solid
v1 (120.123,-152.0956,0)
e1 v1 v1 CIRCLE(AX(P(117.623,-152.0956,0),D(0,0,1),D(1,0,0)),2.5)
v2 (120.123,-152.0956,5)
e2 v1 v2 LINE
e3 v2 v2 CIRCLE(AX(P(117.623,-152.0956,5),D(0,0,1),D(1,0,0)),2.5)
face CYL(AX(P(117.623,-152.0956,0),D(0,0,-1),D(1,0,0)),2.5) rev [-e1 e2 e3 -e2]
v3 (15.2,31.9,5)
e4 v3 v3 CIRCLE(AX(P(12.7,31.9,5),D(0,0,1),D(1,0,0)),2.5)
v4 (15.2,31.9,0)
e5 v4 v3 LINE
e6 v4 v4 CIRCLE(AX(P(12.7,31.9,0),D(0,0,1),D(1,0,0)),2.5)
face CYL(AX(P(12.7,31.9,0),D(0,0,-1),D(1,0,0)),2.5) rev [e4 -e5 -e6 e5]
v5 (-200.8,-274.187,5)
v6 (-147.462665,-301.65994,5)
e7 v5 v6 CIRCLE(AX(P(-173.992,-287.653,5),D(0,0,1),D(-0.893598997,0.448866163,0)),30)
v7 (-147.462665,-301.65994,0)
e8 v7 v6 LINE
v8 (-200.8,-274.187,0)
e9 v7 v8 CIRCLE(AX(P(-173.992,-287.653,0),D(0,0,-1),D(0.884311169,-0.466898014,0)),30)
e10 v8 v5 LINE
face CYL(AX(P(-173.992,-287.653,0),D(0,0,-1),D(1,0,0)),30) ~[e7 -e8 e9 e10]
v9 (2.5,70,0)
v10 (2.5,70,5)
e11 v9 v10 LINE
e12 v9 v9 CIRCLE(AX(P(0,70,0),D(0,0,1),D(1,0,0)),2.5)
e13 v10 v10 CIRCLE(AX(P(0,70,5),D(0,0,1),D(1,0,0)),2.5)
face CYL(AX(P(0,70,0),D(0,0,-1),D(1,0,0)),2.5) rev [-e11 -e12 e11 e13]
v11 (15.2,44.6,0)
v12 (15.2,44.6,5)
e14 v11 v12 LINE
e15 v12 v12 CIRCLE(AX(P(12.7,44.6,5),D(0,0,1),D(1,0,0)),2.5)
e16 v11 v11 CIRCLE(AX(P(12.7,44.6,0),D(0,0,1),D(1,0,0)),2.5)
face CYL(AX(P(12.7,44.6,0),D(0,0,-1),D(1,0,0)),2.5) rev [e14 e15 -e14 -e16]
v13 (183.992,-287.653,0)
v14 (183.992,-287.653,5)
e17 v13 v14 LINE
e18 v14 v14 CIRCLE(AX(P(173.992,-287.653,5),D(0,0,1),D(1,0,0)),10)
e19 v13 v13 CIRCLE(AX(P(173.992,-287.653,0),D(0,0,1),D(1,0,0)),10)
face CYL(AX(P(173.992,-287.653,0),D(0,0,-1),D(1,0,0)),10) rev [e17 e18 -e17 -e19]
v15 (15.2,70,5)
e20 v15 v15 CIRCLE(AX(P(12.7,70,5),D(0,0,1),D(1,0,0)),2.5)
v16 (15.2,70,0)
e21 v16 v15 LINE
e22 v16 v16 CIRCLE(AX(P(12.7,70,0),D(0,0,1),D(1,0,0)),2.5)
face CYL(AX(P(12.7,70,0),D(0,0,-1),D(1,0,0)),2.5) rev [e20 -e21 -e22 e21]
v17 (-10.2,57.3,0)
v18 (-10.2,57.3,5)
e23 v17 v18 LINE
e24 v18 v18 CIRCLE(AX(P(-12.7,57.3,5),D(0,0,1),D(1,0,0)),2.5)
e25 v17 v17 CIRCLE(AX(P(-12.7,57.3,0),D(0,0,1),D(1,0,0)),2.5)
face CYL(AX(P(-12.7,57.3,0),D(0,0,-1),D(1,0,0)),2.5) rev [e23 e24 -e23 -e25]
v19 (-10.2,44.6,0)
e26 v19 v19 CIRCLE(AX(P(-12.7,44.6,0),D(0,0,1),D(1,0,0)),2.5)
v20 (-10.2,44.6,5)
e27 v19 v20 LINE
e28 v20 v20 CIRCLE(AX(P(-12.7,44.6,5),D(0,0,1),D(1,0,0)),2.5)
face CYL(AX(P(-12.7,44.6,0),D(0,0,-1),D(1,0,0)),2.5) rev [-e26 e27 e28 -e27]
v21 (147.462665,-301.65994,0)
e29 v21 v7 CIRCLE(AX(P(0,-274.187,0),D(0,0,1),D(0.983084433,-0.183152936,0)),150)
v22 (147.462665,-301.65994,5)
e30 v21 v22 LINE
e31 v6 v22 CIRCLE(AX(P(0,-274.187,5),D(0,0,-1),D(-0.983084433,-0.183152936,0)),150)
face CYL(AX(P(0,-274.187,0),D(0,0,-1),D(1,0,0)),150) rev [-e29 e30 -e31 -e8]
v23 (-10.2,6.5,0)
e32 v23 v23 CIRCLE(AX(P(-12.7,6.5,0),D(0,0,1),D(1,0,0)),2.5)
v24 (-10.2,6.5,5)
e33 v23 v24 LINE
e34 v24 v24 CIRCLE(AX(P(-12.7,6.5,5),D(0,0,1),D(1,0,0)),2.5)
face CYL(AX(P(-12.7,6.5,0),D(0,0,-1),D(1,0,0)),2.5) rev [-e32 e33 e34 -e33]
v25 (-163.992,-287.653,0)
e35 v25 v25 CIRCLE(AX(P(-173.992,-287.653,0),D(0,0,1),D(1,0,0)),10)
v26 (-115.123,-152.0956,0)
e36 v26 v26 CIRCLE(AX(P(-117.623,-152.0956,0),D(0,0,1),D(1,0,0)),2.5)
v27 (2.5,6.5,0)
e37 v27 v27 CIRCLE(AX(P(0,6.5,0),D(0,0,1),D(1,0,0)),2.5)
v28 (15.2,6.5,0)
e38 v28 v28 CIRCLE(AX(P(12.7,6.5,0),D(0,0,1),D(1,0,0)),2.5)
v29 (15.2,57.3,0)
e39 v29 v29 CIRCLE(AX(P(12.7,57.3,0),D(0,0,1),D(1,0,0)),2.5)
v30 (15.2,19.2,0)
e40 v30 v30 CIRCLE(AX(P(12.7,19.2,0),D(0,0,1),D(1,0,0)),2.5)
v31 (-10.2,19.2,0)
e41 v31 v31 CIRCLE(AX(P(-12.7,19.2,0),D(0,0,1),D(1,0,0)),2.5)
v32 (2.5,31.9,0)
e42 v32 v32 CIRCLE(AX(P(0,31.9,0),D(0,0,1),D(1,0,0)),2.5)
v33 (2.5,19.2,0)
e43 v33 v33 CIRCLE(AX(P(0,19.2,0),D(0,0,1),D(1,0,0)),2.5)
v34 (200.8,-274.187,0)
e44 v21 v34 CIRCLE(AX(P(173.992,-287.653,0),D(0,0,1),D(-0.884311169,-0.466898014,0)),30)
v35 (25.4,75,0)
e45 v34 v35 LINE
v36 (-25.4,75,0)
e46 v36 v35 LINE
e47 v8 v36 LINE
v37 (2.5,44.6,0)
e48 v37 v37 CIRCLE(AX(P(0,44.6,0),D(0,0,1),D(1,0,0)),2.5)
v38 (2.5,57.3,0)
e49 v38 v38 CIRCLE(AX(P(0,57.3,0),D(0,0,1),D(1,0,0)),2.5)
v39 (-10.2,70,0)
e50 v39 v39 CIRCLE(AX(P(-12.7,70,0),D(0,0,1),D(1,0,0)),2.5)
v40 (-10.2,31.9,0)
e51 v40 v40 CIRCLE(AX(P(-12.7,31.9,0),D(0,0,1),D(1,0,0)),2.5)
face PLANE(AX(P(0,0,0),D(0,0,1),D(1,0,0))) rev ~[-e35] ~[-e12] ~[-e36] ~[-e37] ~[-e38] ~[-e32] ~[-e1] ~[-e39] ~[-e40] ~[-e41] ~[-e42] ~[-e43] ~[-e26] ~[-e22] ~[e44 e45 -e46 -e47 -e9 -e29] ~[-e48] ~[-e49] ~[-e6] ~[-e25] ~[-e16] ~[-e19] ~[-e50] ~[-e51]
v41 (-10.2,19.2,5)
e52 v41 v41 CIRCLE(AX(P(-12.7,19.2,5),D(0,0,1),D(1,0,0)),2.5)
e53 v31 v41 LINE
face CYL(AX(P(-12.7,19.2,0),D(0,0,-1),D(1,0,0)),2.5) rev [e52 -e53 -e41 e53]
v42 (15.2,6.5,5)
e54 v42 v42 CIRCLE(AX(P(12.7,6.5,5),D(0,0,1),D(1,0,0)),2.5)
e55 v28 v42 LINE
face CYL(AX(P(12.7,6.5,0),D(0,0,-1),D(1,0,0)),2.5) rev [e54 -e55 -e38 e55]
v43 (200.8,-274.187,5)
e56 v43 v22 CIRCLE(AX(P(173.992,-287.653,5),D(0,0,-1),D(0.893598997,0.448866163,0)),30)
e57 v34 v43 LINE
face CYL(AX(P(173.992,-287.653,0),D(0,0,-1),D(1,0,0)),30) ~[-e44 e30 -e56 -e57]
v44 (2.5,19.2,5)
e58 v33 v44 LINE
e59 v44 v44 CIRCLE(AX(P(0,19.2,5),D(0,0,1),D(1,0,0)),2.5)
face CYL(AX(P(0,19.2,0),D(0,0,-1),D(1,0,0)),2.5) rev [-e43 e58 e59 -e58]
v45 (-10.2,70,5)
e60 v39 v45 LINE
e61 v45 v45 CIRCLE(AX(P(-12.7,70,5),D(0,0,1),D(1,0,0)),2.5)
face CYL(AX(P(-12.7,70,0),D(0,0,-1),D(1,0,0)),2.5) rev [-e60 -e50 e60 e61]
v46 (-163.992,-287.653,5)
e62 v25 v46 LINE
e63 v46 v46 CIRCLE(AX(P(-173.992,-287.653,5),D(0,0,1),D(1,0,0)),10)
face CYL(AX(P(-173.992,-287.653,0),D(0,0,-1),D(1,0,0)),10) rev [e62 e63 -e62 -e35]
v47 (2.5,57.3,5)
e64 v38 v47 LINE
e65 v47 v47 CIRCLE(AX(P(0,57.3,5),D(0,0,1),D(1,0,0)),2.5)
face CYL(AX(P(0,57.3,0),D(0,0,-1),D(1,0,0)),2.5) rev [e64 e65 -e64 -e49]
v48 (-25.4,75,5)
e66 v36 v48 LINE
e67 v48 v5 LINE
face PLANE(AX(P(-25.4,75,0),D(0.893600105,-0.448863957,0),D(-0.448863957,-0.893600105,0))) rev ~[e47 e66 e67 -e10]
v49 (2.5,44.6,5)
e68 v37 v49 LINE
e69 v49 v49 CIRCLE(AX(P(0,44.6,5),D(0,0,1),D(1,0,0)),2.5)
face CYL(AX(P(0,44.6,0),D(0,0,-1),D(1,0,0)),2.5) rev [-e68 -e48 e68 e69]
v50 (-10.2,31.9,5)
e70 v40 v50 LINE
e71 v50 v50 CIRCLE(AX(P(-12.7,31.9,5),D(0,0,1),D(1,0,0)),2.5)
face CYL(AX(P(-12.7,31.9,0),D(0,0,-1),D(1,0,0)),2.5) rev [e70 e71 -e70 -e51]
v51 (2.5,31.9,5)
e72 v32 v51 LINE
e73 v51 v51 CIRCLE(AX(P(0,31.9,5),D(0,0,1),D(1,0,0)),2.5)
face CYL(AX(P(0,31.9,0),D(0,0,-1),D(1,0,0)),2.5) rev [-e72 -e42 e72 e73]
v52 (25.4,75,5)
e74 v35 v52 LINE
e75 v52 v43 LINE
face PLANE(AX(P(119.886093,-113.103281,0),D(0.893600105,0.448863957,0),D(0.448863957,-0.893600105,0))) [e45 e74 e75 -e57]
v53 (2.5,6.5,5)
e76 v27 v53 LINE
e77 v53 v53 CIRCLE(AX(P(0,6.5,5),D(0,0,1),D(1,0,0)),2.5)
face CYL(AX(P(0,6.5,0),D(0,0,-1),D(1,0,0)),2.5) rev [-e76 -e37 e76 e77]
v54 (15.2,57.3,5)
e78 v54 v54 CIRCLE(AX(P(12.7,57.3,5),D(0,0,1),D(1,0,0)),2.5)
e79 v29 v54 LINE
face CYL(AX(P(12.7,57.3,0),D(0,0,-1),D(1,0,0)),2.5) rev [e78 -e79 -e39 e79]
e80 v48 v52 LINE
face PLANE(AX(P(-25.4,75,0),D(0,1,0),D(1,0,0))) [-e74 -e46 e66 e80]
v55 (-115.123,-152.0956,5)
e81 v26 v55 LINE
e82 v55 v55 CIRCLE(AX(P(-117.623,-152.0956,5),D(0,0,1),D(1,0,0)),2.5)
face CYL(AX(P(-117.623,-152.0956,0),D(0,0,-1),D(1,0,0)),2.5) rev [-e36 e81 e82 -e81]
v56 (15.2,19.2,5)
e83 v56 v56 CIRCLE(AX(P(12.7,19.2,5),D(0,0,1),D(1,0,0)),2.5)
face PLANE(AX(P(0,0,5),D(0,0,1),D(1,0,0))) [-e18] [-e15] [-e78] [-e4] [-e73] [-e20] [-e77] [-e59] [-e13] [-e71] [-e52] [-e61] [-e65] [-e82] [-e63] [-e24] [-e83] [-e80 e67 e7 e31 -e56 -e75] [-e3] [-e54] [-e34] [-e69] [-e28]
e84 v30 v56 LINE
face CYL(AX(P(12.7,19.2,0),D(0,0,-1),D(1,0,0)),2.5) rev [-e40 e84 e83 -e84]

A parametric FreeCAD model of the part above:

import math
import FreeCAD as App
import Part
import Sketcher
Q = App.Units.Quantity

doc = App.newDocument("Part")
body = doc.addObject("PartDesign::Body", "Body")

sketch1 = body.newObject("Sketcher::SketchObject", "Sketch")
sketch1.AttachmentSupport = (doc.getObject("XY_Plane"), [""])
sketch1.MapMode = "FlatFace"
sketch1.addGeometry([
    Part.LineSegment(App.Vector(200.8, -274.2, 0), App.Vector(25.4, 75, 0)),
    Part.LineSegment(App.Vector(25.4, 75, 0), App.Vector(-25.4, 75, 0)),
    Part.LineSegment(App.Vector(-25.4, 75, 0), App.Vector(-200.8, -274.2, 0)),
    Part.ArcOfCircle(Part.Circle(App.Vector(-174, -287.7, 0), App.Vector(0, 0, 1), 30), math.radians(153), math.radians(332)),
    Part.ArcOfCircle(Part.Circle(App.Vector(0, -274.2, 0), App.Vector(0, 0, 1), 150), math.radians(-11), math.radians(191)),
    Part.ArcOfCircle(Part.Circle(App.Vector(174, -287.7, 0), App.Vector(0, 0, 1), 30), math.radians(-152), math.radians(27)),
    Part.Circle(App.Vector(117.6, -152.1, 0), App.Vector(0, 0, 1), 2.5),
    Part.Circle(App.Vector(174, -287.7, 0), App.Vector(0, 0, 1), 10),
    Part.Circle(App.Vector(-117.6, -152.1, 0), App.Vector(0, 0, 1), 2.5),
    Part.Circle(App.Vector(0, 70, 0), App.Vector(0, 0, 1), 2.5),
    Part.Circle(App.Vector(12.7, 70, 0), App.Vector(0, 0, 1), 2.5),
    Part.Circle(App.Vector(-12.7, 6.5, 0), App.Vector(0, 0, 1), 2.5),
    Part.Circle(App.Vector(-12.7, 19.2, 0), App.Vector(0, 0, 1), 2.5),
    Part.Circle(App.Vector(-12.7, 31.9, 0), App.Vector(0, 0, 1), 2.5),
    Part.Circle(App.Vector(-12.7, 44.6, 0), App.Vector(0, 0, 1), 2.5),
    Part.Circle(App.Vector(-12.7, 57.3, 0), App.Vector(0, 0, 1), 2.5),
    Part.Circle(App.Vector(-12.7, 70, 0), App.Vector(0, 0, 1), 2.5),
    Part.Circle(App.Vector(0, 6.5, 0), App.Vector(0, 0, 1), 2.5),
    Part.Circle(App.Vector(12.7, 6.5, 0), App.Vector(0, 0, 1), 2.5),
    Part.Circle(App.Vector(0, 19.2, 0), App.Vector(0, 0, 1), 2.5),
    Part.Circle(App.Vector(12.7, 19.2, 0), App.Vector(0, 0, 1), 2.5),
    Part.Circle(App.Vector(0, 31.9, 0), App.Vector(0, 0, 1), 2.5),
    Part.Circle(App.Vector(12.7, 31.9, 0), App.Vector(0, 0, 1), 2.5),
    Part.Circle(App.Vector(0, 44.6, 0), App.Vector(0, 0, 1), 2.5),
    Part.Circle(App.Vector(12.7, 44.6, 0), App.Vector(0, 0, 1), 2.5),
    Part.Circle(App.Vector(0, 57.3, 0), App.Vector(0, 0, 1), 2.5),
    Part.Circle(App.Vector(12.7, 57.3, 0), App.Vector(0, 0, 1), 2.5),
    Part.Circle(App.Vector(-174, -287.7, 0), App.Vector(0, 0, 1), 10),
], False)
sketch1.addConstraint([
    Sketcher.Constraint("Coincident", 0, 2, 1, 1),
    Sketcher.Constraint("Coincident", 1, 2, 2, 1),
    Sketcher.Constraint("Tangent", 2, 2, 3, 1),
    Sketcher.Constraint("Coincident", 3, 2, 4, 2),
    Sketcher.Constraint("Coincident", 4, 1, 5, 1),
    Sketcher.Constraint("Tangent", 5, 2, 0, 1),
    Sketcher.Constraint("Horizontal", 1),
    Sketcher.Constraint("Coincident", 7, 3, 5, 3),
    Sketcher.Constraint("Coincident", 27, 3, 3, 3),
    Sketcher.Constraint("Equal", 3, 5),
    Sketcher.Constraint("Equal", 6, 8),
    Sketcher.Constraint("Equal", 8, 9),
    Sketcher.Constraint("Equal", 9, 10),
    Sketcher.Constraint("Equal", 10, 11),
    Sketcher.Constraint("Equal", 11, 12),
    Sketcher.Constraint("Equal", 12, 13),
    Sketcher.Constraint("Equal", 13, 14),
    Sketcher.Constraint("Equal", 14, 15),
    Sketcher.Constraint("Equal", 15, 16),
    Sketcher.Constraint("Equal", 16, 17),
    Sketcher.Constraint("Equal", 17, 18),
    Sketcher.Constraint("Equal", 18, 19),
    Sketcher.Constraint("Equal", 19, 20),
    Sketcher.Constraint("Equal", 20, 21),
    Sketcher.Constraint("Equal", 21, 22),
    Sketcher.Constraint("Equal", 22, 23),
    Sketcher.Constraint("Equal", 23, 24),
    Sketcher.Constraint("Equal", 24, 25),
    Sketcher.Constraint("Equal", 25, 26),
    Sketcher.Constraint("Equal", 7, 27),
    Sketcher.Constraint("Symmetric", 3, 3, 5, 3, -2),
    Sketcher.Constraint("Symmetric", 6, 3, 8, 3, -2),
    Sketcher.Constraint("Symmetric", 10, 3, 16, 3, -2),
    Sketcher.Constraint("Symmetric", 11, 3, 18, 3, -2),
    Sketcher.Constraint("Symmetric", 12, 3, 20, 3, -2),
    Sketcher.Constraint("Symmetric", 13, 3, 22, 3, -2),
    Sketcher.Constraint("Symmetric", 14, 3, 24, 3, -2),
    Sketcher.Constraint("Symmetric", 15, 3, 26, 3, -2),
    Sketcher.Constraint("PointOnObject", 4, 3, -2),
    Sketcher.Constraint("PointOnObject", 9, 3, -2),
    Sketcher.Constraint("PointOnObject", 17, 3, -2),
    Sketcher.Constraint("PointOnObject", 19, 3, -2),
    Sketcher.Constraint("PointOnObject", 21, 3, -2),
    Sketcher.Constraint("PointOnObject", 23, 3, -2),
    Sketcher.Constraint("PointOnObject", 25, 3, -2),
    Sketcher.Constraint("Horizontal", 9, 3, 10, 3),
    Sketcher.Constraint("Horizontal", 11, 3, 17, 3),
    Sketcher.Constraint("Horizontal", 12, 3, 19, 3),
    Sketcher.Constraint("Horizontal", 13, 3, 21, 3),
    Sketcher.Constraint("Horizontal", 14, 3, 23, 3),
    Sketcher.Constraint("Horizontal", 15, 3, 25, 3),
    Sketcher.Constraint("Horizontal", 4, 3, 2, 2),
    Sketcher.Constraint("Horizontal", 2, 2, 5, 2),
    Sketcher.Constraint("Vertical", 11, 3, 12, 3),
    Sketcher.Constraint("Vertical", 12, 3, 13, 3),
    Sketcher.Constraint("Vertical", 13, 3, 14, 3),
    Sketcher.Constraint("Vertical", 14, 3, 15, 3),
    Sketcher.Constraint("Vertical", 15, 3, 16, 3),
    Sketcher.Constraint("Diameter", 6, 5.0),
    Sketcher.Constraint("Diameter", 7, 20.0),
    Sketcher.Constraint("Radius", 3, 30.0),
    Sketcher.Constraint("Radius", 4, 150.0),
    Sketcher.Constraint("DistanceX", 1, 2, 1, 1, 50.8),
    Sketcher.Constraint("DistanceY", 10, 3, 0, 2, 5.0),
    Sketcher.Constraint("DistanceX", -1, 1, 10, 3, 12.7),
    Sketcher.Constraint("DistanceY", 11, 3, 12, 3, 12.7),
    Sketcher.Constraint("DistanceY", 12, 3, 9, 3, 50.8),
    Sketcher.Constraint("DistanceY", 12, 3, 13, 3, 12.7),
    Sketcher.Constraint("DistanceY", 13, 3, 14, 3, 12.7),
    Sketcher.Constraint("DistanceY", 14, 3, 15, 3, 12.7),
    Sketcher.Constraint("DistanceY", -1, 1, 9, 3, 70.0),
    Sketcher.Constraint("DistanceX", 2, 2, -1, 1, 200.8),
    Sketcher.Constraint("Angle", 0, Q("116.6708 deg")),
    Sketcher.Constraint("DistanceX", -1, 1, 6, 3, 117.623),
    Sketcher.Constraint("DistanceY", 6, 3, -1, 1, 152.0956),
])
pad1 = body.newObject("PartDesign::Pad", "Pad")
pad1.Profile = sketch1
pad1.Length = 5

doc.recompute()
